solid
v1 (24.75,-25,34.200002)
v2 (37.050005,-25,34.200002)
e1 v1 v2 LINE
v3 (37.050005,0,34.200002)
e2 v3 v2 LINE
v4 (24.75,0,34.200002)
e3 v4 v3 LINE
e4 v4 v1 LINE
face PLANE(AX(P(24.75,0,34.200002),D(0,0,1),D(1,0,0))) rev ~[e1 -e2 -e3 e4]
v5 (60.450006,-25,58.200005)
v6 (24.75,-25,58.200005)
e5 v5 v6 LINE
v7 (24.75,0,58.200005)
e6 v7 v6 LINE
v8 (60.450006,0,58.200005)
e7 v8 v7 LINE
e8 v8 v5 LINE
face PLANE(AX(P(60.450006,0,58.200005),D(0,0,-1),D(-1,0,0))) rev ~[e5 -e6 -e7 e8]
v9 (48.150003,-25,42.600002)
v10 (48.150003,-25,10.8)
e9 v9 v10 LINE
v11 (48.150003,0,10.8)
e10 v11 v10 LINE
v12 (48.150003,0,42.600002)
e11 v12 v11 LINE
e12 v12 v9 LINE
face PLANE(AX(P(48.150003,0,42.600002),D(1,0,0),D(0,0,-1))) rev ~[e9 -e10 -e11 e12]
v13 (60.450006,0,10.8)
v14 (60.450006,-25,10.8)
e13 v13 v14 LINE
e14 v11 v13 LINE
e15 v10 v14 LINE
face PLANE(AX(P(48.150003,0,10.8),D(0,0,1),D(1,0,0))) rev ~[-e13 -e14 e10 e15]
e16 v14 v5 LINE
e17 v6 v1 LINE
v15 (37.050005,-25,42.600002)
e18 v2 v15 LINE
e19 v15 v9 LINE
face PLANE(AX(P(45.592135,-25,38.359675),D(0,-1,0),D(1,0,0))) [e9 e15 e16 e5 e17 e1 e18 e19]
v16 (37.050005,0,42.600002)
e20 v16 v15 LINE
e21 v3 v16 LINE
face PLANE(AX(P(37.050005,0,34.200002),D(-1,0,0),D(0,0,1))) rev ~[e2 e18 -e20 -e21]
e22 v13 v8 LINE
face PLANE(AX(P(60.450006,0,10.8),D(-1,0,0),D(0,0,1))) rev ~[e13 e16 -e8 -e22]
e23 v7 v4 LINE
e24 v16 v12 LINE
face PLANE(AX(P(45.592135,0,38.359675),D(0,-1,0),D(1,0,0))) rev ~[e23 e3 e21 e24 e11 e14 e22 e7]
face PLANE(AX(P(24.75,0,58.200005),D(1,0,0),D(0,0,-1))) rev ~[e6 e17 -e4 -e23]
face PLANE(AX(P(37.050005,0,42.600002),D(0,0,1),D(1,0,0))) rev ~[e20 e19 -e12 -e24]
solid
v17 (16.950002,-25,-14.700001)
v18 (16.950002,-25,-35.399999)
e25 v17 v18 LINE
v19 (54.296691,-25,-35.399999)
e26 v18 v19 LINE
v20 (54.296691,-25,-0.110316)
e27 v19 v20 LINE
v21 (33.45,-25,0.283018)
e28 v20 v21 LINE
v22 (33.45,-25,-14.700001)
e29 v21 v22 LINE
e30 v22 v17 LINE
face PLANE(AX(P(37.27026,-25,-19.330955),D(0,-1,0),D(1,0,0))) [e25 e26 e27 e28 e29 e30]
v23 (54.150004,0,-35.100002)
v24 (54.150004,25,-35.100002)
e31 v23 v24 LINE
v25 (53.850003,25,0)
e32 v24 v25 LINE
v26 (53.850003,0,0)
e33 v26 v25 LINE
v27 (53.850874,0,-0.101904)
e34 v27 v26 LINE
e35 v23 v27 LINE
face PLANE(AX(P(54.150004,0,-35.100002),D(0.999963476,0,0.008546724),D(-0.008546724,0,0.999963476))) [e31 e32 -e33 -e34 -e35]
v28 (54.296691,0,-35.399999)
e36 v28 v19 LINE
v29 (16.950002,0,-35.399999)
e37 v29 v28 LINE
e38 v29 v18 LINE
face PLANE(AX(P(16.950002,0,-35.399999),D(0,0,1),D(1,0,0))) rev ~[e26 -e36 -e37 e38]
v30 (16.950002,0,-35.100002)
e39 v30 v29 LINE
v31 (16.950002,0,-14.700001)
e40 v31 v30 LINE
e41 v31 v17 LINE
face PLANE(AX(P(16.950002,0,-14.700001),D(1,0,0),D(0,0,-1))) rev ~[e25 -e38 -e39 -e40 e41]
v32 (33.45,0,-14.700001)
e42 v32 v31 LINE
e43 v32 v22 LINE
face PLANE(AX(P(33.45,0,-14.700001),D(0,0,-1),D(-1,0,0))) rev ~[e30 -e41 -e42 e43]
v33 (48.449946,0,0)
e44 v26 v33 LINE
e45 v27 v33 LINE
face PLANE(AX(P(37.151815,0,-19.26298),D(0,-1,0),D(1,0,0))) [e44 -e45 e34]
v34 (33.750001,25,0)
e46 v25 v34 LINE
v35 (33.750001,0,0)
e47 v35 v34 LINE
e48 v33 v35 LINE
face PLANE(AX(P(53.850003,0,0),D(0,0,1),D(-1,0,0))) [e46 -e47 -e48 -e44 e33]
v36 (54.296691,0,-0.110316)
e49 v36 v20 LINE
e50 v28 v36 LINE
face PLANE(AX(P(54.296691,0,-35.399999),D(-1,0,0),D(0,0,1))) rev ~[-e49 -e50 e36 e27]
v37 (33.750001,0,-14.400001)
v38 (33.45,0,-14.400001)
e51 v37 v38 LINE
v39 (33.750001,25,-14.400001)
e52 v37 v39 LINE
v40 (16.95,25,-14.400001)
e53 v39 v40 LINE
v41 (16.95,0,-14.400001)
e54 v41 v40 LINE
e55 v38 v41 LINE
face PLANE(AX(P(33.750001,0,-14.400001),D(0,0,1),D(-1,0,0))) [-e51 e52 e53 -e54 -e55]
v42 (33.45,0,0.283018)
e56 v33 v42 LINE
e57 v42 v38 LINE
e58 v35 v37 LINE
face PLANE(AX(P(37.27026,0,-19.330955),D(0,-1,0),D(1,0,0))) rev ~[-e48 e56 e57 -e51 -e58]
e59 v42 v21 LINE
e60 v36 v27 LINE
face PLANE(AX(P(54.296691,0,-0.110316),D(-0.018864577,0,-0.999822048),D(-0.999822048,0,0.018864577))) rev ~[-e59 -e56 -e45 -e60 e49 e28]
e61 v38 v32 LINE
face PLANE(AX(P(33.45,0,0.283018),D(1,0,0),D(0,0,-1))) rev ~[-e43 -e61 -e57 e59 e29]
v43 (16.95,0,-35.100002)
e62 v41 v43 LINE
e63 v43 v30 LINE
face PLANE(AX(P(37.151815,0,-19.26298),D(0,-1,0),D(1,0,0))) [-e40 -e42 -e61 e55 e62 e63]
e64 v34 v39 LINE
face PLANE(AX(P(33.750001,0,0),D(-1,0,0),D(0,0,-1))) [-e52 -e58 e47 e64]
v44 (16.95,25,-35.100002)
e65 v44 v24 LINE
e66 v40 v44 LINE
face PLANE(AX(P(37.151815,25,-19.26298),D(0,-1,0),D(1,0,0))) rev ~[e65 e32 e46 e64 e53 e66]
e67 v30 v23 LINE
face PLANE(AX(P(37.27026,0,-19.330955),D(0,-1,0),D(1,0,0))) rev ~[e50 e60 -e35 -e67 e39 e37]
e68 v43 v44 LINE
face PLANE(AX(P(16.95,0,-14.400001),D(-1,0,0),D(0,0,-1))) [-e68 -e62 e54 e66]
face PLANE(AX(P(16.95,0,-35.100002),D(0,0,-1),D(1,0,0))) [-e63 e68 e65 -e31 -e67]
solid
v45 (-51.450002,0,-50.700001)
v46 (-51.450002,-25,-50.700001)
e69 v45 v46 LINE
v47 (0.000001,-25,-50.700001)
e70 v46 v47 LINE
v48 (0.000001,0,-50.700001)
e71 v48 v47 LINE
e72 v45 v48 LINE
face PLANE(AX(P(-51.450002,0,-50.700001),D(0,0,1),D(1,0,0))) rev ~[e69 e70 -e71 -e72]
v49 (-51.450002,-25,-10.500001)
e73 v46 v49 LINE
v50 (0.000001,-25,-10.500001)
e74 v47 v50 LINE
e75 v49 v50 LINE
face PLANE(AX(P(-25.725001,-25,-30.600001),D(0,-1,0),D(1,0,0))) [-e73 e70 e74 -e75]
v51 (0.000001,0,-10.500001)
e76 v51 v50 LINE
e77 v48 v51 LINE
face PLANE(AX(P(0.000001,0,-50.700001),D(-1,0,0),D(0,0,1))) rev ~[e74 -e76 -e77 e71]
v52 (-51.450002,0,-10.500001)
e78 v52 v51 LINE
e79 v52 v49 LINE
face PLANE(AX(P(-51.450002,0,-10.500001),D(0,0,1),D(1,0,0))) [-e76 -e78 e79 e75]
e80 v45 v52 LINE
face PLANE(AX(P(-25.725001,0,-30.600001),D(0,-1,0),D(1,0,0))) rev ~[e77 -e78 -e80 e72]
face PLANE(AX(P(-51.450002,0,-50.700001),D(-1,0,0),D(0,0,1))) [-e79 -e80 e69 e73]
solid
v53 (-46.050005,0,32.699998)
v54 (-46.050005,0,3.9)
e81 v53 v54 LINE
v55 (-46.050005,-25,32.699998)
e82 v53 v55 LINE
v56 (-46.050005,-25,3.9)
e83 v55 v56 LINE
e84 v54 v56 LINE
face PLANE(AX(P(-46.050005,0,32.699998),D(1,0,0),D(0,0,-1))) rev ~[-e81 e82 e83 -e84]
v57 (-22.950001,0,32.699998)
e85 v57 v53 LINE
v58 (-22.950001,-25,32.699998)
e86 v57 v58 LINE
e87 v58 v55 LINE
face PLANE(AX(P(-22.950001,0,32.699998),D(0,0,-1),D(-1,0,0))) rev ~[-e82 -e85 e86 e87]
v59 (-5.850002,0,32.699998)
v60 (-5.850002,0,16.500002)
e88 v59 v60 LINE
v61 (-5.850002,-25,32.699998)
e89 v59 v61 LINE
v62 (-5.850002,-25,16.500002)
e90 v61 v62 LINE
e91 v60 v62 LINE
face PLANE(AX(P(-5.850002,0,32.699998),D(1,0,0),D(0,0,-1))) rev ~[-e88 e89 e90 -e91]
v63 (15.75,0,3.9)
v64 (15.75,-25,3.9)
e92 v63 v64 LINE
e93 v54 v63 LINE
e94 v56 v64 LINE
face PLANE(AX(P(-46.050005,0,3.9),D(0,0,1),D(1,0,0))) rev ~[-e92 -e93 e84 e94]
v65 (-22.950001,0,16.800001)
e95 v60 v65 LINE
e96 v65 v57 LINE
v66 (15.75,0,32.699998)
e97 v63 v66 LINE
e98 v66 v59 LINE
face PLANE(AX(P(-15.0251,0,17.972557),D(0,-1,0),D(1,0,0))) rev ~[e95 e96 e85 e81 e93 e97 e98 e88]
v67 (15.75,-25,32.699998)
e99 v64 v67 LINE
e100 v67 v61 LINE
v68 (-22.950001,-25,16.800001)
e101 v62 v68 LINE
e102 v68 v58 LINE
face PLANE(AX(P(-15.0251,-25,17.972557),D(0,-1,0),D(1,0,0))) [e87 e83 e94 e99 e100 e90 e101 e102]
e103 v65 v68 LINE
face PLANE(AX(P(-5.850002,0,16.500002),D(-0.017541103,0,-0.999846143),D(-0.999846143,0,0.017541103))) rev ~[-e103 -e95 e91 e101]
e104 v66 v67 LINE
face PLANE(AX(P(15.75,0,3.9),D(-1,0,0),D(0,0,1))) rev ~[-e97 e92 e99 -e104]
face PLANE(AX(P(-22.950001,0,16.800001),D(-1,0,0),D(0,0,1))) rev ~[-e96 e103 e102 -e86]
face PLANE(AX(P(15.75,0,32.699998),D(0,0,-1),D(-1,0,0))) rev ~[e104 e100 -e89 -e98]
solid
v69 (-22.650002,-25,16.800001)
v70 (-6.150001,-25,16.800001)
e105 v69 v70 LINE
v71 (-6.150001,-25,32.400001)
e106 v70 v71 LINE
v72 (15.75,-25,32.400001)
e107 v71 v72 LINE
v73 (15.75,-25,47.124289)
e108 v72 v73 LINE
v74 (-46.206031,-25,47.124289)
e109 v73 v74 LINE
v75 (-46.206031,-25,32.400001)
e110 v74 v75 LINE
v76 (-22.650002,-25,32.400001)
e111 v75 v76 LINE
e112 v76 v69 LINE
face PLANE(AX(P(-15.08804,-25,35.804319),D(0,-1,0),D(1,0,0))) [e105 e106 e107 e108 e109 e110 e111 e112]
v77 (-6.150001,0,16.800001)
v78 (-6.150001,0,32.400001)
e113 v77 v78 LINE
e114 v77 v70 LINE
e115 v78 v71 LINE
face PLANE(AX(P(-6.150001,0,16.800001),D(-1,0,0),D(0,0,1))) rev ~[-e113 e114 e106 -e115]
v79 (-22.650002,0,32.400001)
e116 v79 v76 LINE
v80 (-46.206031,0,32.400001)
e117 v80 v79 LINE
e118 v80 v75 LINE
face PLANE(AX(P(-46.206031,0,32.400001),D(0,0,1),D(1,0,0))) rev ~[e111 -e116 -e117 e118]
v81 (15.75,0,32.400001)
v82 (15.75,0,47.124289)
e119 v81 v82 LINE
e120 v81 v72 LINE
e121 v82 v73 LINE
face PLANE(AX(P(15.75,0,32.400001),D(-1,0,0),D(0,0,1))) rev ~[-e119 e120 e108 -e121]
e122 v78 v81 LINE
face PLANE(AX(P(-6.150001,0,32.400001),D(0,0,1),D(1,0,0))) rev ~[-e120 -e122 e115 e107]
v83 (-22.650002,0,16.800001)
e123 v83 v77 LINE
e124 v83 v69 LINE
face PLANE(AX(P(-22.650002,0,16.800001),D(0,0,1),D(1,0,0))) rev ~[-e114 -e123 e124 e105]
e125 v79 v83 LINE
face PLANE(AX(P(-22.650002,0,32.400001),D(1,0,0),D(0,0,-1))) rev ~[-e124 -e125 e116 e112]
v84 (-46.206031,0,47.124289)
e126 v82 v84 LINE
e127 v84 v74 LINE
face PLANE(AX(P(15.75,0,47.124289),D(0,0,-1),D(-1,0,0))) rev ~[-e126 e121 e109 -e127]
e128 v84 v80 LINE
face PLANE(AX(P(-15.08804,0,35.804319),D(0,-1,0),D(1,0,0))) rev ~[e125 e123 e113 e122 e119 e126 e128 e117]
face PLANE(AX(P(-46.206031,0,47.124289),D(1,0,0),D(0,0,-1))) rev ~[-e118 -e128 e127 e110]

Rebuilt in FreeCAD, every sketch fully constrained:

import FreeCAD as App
import Part
import Sketcher

doc = App.newDocument("Part")
params = doc.addObject("Spreadsheet::Sheet", "Params")
for row, (alias, value) in enumerate([
    ("sketch1_width", "21.600002 mm"),
    ("sketch1_height", "28.799998 mm"),
    ("pad1_length", "25 mm"),
    ("sketch2_width", "16.500001 mm"),
    ("sketch2_width2", "21.900001 mm"),
    ("sketch2_height", "15.6 mm"),
    ("pad2_length", "25 mm"),
    ("sketch3_height", "40.2 mm"),
    ("pad3_length", "25 mm"),
    ("sketch4_width", "16.499998 mm"),
    ("sketch4_height", "20.699998 mm"),
    ("pad4_length", "25 mm"),
    ("sketch5_width", "16.499998 mm"),
    ("sketch5_height", "20.699998 mm"),
    ("pad5_length", "25 mm"),
    ("sketch6_width", "16.800001 mm"),
    ("sketch6_height", "14.400001 mm"),
    ("sketch6_height2", "20.700001 mm"),
    ("pad6_length", "25 mm"),
    ("sketch7_height", "8.4 mm"),
    ("pad7_length", "25 mm"),
], start=1):
    params.set(f"A{row}", alias)
    params.set(f"B{row}", "=" + value)
    params.setAlias(f"B{row}", alias)

body = doc.addObject("PartDesign::Body", "Body")

sketch1 = body.newObject("Sketcher::SketchObject", "Sketch")
sketch1.AttachmentSupport = (doc.getObject("XZ_Plane"), [""])
sketch1.MapMode = "FlatFace"
sketch1.addGeometry([
    Part.LineSegment(App.Vector(-46, 33, 0), App.Vector(-46, 4, 0)),
    Part.LineSegment(App.Vector(-46, 4, 0), App.Vector(16, 4, 0)),
    Part.LineSegment(App.Vector(16, 4, 0), App.Vector(16, 33, 0)),
    Part.LineSegment(App.Vector(16, 33, 0), App.Vector(-6, 33, 0)),
    Part.LineSegment(App.Vector(-6, 33, 0), App.Vector(-6, 17, 0)),
    Part.LineSegment(App.Vector(-6, 17, 0), App.Vector(-23, 17, 0)),
    Part.LineSegment(App.Vector(-23, 17, 0), App.Vector(-23, 33, 0)),
    Part.LineSegment(App.Vector(-23, 33, 0), App.Vector(-46, 33, 0)),
], False)
sketch1.addConstraint([
    Sketcher.Constraint("Coincident", 0, 2, 1, 1),
    Sketcher.Constraint("Coincident", 1, 2, 2, 1),
    Sketcher.Constraint("Coincident", 2, 2, 3, 1),
    Sketcher.Constraint("Coincident", 3, 2, 4, 1),
    Sketcher.Constraint("Coincident", 4, 2, 5, 1),
    Sketcher.Constraint("Coincident", 5, 2, 6, 1),
    Sketcher.Constraint("Coincident", 6, 2, 7, 1),
    Sketcher.Constraint("Coincident", 7, 2, 0, 1),
    Sketcher.Constraint("Vertical", 0),
    Sketcher.Constraint("Horizontal", 1),
    Sketcher.Constraint("Vertical", 2),
    Sketcher.Constraint("Horizontal", 3),
    Sketcher.Constraint("Vertical", 4),
    Sketcher.Constraint("Vertical", 6),
    Sketcher.Constraint("Horizontal", 7),
    Sketcher.Constraint("Horizontal", 3, 2, 6, 2),
    Sketcher.Constraint("DistanceX", 3, 2, 3, 1, 21.600002),
    Sketcher.Constraint("DistanceY", 0, 2, 0, 1, 28.799998),
    Sketcher.Constraint("DistanceY", -1, 1, 0, 2, 3.9),
    Sketcher.Constraint("DistanceY", -1, 1, 4, 2, 16.500002),
    Sketcher.Constraint("DistanceY", -1, 1, 5, 2, 16.800001),
    Sketcher.Constraint("DistanceX", 5, 2, 4, 2, 17.099999),
    Sketcher.Constraint("DistanceX", -1, 1, 1, 2, 15.75),
    Sketcher.Constraint("DistanceX", 1, 1, 1, 2, 61.800005),
])
sketch1.setExpression("Constraints[16]", "Params.sketch1_width")
sketch1.setExpression("Constraints[17]", "Params.sketch1_height")
pad1 = body.newObject("PartDesign::Pad", "Pad")
pad1.Profile = sketch1
pad1.setExpression("Length", "Params.pad1_length")
body2 = doc.addObject("PartDesign::Body", "Body001")

sketch2 = body2.newObject("Sketcher::SketchObject", "Sketch001")
sketch2.AttachmentSupport = (doc.getObject("XZ_Plane001"), [""])
sketch2.MapMode = "FlatFace"
sketch2.addGeometry([
    Part.LineSegment(App.Vector(-23, 32, 0), App.Vector(-23, 17, 0)),
    Part.LineSegment(App.Vector(-23, 17, 0), App.Vector(-6, 17, 0)),
    Part.LineSegment(App.Vector(-6, 17, 0), App.Vector(-6, 32, 0)),
    Part.LineSegment(App.Vector(-6, 32, 0), App.Vector(16, 32, 0)),
    Part.LineSegment(App.Vector(16, 32, 0), App.Vector(16, 47, 0)),
    Part.LineSegment(App.Vector(16, 47, 0), App.Vector(-46, 47, 0)),
    Part.LineSegment(App.Vector(-46, 47, 0), App.Vector(-46, 32, 0)),
    Part.LineSegment(App.Vector(-46, 32, 0), App.Vector(-23, 32, 0)),
], False)
sketch2.addConstraint([
    Sketcher.Constraint("Coincident", 0, 2, 1, 1),
    Sketcher.Constraint("Coincident", 1, 2, 2, 1),
    Sketcher.Constraint("Coincident", 2, 2, 3, 1),
    Sketcher.Constraint("Coincident", 3, 2, 4, 1),
    Sketcher.Constraint("Coincident", 4, 2, 5, 1),
    Sketcher.Constraint("Coincident", 5, 2, 6, 1),
    Sketcher.Constraint("Coincident", 6, 2, 7, 1),
    Sketcher.Constraint("Coincident", 7, 2, 0, 1),
    Sketcher.Constraint("Vertical", 0),
    Sketcher.Constraint("Horizontal", 1),
    Sketcher.Constraint("Vertical", 2),
    Sketcher.Constraint("Horizontal", 3),
    Sketcher.Constraint("Vertical", 4),
    Sketcher.Constraint("Horizontal", 5),
    Sketcher.Constraint("Vertical", 6),
    Sketcher.Constraint("Horizontal", 7),
    Sketcher.Constraint("Horizontal", 3, 2, 6, 2),
    Sketcher.Constraint("DistanceX", 1, 1, 1, 2, 16.500001),
    Sketcher.Constraint("DistanceX", 3, 1, 3, 2, 21.900001),
    Sketcher.Constraint("DistanceY", 0, 2, 0, 1, 15.6),
    Sketcher.Constraint("DistanceY", -1, 1, 0, 2, 16.800001),
    Sketcher.Constraint("DistanceX", 1, 2, -1, 1, 6.150001),
    Sketcher.Constraint("DistanceX", 5, 2, 5, 1, 61.956031),
    Sketcher.Constraint("DistanceY", 4, 1, 4, 2, 14.724288),
])
sketch2.setExpression("Constraints[17]", "Params.sketch2_width")
sketch2.setExpression("Constraints[18]", "Params.sketch2_width2")
sketch2.setExpression("Constraints[19]", "Params.sketch2_height")
pad2 = body2.newObject("PartDesign::Pad", "Pad001")
pad2.Profile = sketch2
pad2.setExpression("Length", "Params.pad2_length")
body3 = doc.addObject("PartDesign::Body", "Body002")

sketch3 = body3.newObject("Sketcher::SketchObject", "Sketch002")
sketch3.AttachmentSupport = (doc.getObject("XZ_Plane002"), [""])
sketch3.MapMode = "FlatFace"
sketch3.addGeometry([
    Part.LineSegment(App.Vector(-51, -11, 0), App.Vector(-51, -51, 0)),
    Part.LineSegment(App.Vector(-51, -51, 0), App.Vector(0, -51, 0)),
    Part.LineSegment(App.Vector(0, -51, 0), App.Vector(0, -11, 0)),
    Part.LineSegment(App.Vector(0, -11, 0), App.Vector(-51, -11, 0)),
], False)
sketch3.addConstraint([
    Sketcher.Constraint("Coincident", 0, 2, 1, 1),
    Sketcher.Constraint("Coincident", 1, 2, 2, 1),
    Sketcher.Constraint("Coincident", 2, 2, 3, 1),
    Sketcher.Constraint("Coincident", 3, 2, 0, 1),
    Sketcher.Constraint("Vertical", 0),
    Sketcher.Constraint("Horizontal", 1),
    Sketcher.Constraint("Vertical", 2),
    Sketcher.Constraint("Horizontal", 3),
    Sketcher.Constraint("PointOnObject", 1, 2, -2),
    Sketcher.Constraint("DistanceY", 0, 2, 0, 1, 40.2),
    Sketcher.Constraint("DistanceY", 0, 2, -1, 1, 50.700001),
    Sketcher.Constraint("DistanceX", 1, 1, 1, 2, 51.450003),
])
sketch3.setExpression("Constraints[9]", "Params.sketch3_height")
pad3 = body3.newObject("PartDesign::Pad", "Pad002")
pad3.Profile = sketch3
pad3.setExpression("Length", "Params.pad3_length")
body4 = doc.addObject("PartDesign::Body", "Body003")

sketch4 = body4.newObject("Sketcher::SketchObject", "Sketch003")
sketch4.AttachmentSupport = (doc.getObject("XZ_Plane003"), [""])
sketch4.MapMode = "FlatFace"
sketch4.addGeometry([
    Part.LineSegment(App.Vector(54.296691, -35.399999, 0), App.Vector(54.296691, -0.110316, 0)),
    Part.LineSegment(App.Vector(54.296691, -0.110316, 0), App.Vector(33.45, 0.283018, 0)),
    Part.LineSegment(App.Vector(33.45, 0.283018, 0), App.Vector(33.45, -14.700001, 0)),
    Part.LineSegment(App.Vector(33.45, -14.700001, 0), App.Vector(16.950002, -14.700001, 0)),
    Part.LineSegment(App.Vector(16.950002, -14.700001, 0), App.Vector(16.950002, -35.399999, 0)),
    Part.LineSegment(App.Vector(16.950002, -35.399999, 0), App.Vector(54.296691, -35.399999, 0)),
], False)
sketch4.addConstraint([
    Sketcher.Constraint("Coincident", 0, 2, 1, 1),
    Sketcher.Constraint("Coincident", 1, 2, 2, 1),
    Sketcher.Constraint("Coincident", 2, 2, 3, 1),
    Sketcher.Constraint("Coincident", 3, 2, 4, 1),
    Sketcher.Constraint("Coincident", 4, 2, 5, 1),
    Sketcher.Constraint("Coincident", 5, 2, 0, 1),
    Sketcher.Constraint("Vertical", 0),
    Sketcher.Constraint("Vertical", 2),
    Sketcher.Constraint("Horizontal", 3),
    Sketcher.Constraint("Vertical", 4),
    Sketcher.Constraint("Horizontal", 5),
    Sketcher.Constraint("DistanceX", 3, 2, 3, 1, 16.499998),
    Sketcher.Constraint("DistanceY", 4, 2, 4, 1, 20.699998),
    Sketcher.Constraint("DistanceY", 2, 2, -1, 1, 14.700001),
    Sketcher.Constraint("DistanceX", -1, 1, 1, 2, 33.45),
    Sketcher.Constraint("Distance", 1, 20.850401),
    Sketcher.Constraint("DistanceX", 5, 1, 5, 2, 37.346689),
    Sketcher.Constraint("DistanceY", 2, 2, 2, 1, 14.983019),
])
sketch4.setExpression("Constraints[11]", "Params.sketch4_width")
sketch4.setExpression("Constraints[12]", "Params.sketch4_height")
pad4 = body4.newObject("PartDesign::Pad", "Pad003")
pad4.Profile = sketch4
pad4.setExpression("Length", "Params.pad4_length")

sketch5 = body4.newObject("Sketcher::SketchObject", "Sketch004")
sketch5.AttachmentSupport = (doc.getObject("XZ_Plane003"), [""])
sketch5.MapMode = "FlatFace"
sketch5.addGeometry([
    Part.LineSegment(App.Vector(54.296691, -35.399999, 0), App.Vector(54.296691, -0.110316, 0)),
    Part.LineSegment(App.Vector(54.296691, -0.110316, 0), App.Vector(33.45, 0.283018, 0)),
    Part.LineSegment(App.Vector(33.45, 0.283018, 0), App.Vector(33.45, -14.700001, 0)),
    Part.LineSegment(App.Vector(33.45, -14.700001, 0), App.Vector(16.950002, -14.700001, 0)),
    Part.LineSegment(App.Vector(16.950002, -14.700001, 0), App.Vector(16.950002, -35.399999, 0)),
    Part.LineSegment(App.Vector(16.950002, -35.399999, 0), App.Vector(54.296691, -35.399999, 0)),
], False)
sketch5.addConstraint([
    Sketcher.Constraint("Coincident", 0, 2, 1, 1),
    Sketcher.Constraint("Coincident", 1, 2, 2, 1),
    Sketcher.Constraint("Coincident", 2, 2, 3, 1),
    Sketcher.Constraint("Coincident", 3, 2, 4, 1),
    Sketcher.Constraint("Coincident", 4, 2, 5, 1),
    Sketcher.Constraint("Coincident", 5, 2, 0, 1),
    Sketcher.Constraint("Vertical", 0),
    Sketcher.Constraint("Vertical", 2),
    Sketcher.Constraint("Horizontal", 3),
    Sketcher.Constraint("Vertical", 4),
    Sketcher.Constraint("Horizontal", 5),
    Sketcher.Constraint("DistanceX", 3, 2, 3, 1, 16.499998),
    Sketcher.Constraint("DistanceY", 4, 2, 4, 1, 20.699998),
    Sketcher.Constraint("DistanceY", 2, 2, -1, 1, 14.700001),
    Sketcher.Constraint("DistanceX", -1, 1, 1, 2, 33.45),
    Sketcher.Constraint("Distance", 1, 20.850401),
    Sketcher.Constraint("DistanceX", 5, 1, 5, 2, 37.346689),
    Sketcher.Constraint("DistanceY", 2, 2, 2, 1, 14.983019),
])
sketch5.setExpression("Constraints[11]", "Params.sketch5_width")
sketch5.setExpression("Constraints[12]", "Params.sketch5_height")
pad5 = body4.newObject("PartDesign::Pad", "Pad004")
pad5.Profile = sketch5
pad5.setExpression("Length", "Params.pad5_length")

sketch6 = body4.newObject("Sketcher::SketchObject", "Sketch005")
sketch6.AttachmentSupport = (doc.getObject("XZ_Plane003"), [""])
sketch6.MapMode = "FlatFace"
sketch6.addGeometry([
    Part.LineSegment(App.Vector(54, -35, 0), App.Vector(54, 0, 0)),
    Part.LineSegment(App.Vector(54, 0, 0), App.Vector(34, 0, 0)),
    Part.LineSegment(App.Vector(34, 0, 0), App.Vector(34, -14, 0)),
    Part.LineSegment(App.Vector(34, -14, 0), App.Vector(17, -14, 0)),
    Part.LineSegment(App.Vector(17, -14, 0), App.Vector(17, -35, 0)),
    Part.LineSegment(App.Vector(17, -35, 0), App.Vector(54, -35, 0)),
], False)
sketch6.addConstraint([
    Sketcher.Constraint("Coincident", 0, 2, 1, 1),
    Sketcher.Constraint("Coincident", 1, 2, 2, 1),
    Sketcher.Constraint("Coincident", 2, 2, 3, 1),
    Sketcher.Constraint("Coincident", 3, 2, 4, 1),
    Sketcher.Constraint("Coincident", 4, 2, 5, 1),
    Sketcher.Constraint("Coincident", 5, 2, 0, 1),
    Sketcher.Constraint("Horizontal", 1),
    Sketcher.Constraint("Vertical", 2),
    Sketcher.Constraint("Horizontal", 3),
    Sketcher.Constraint("Vertical", 4),
    Sketcher.Constraint("Horizontal", 5),
    Sketcher.Constraint("PointOnObject", 0, 2, -1),
    Sketcher.Constraint("DistanceX", 3, 2, 3, 1, 16.800001),
    Sketcher.Constraint("DistanceY", 2, 2, 2, 1, 14.400001),
    Sketcher.Constraint("DistanceY", 4, 2, 4, 1, 20.700001),
    Sketcher.Constraint("DistanceX", 0, 2, 5, 2, 0.300001),
    Sketcher.Constraint("DistanceX", -1, 1, 1, 2, 33.750001),
    Sketcher.Constraint("DistanceX", 1, 2, 1, 1, 20.100002),
])
sketch6.setExpression("Constraints[12]", "Params.sketch6_width")
sketch6.setExpression("Constraints[13]", "Params.sketch6_height")
sketch6.setExpression("Constraints[14]", "Params.sketch6_height2")
pad6 = body4.newObject("PartDesign::Pad", "Pad005")
pad6.Profile = sketch6
pad6.setExpression("Length", "Params.pad6_length")
pad6.Reversed = True
body5 = doc.addObject("PartDesign::Body", "Body004")

sketch7 = body5.newObject("Sketcher::SketchObject", "Sketch006")
sketch7.AttachmentSupport = (doc.getObject("XZ_Plane004"), [""])
sketch7.MapMode = "FlatFace"
sketch7.addGeometry([
    Part.LineSegment(App.Vector(25, 58, 0), App.Vector(25, 34, 0)),
    Part.LineSegment(App.Vector(25, 34, 0), App.Vector(37, 34, 0)),
    Part.LineSegment(App.Vector(37, 34, 0), App.Vector(37, 43, 0)),
    Part.LineSegment(App.Vector(37, 43, 0), App.Vector(48, 43, 0)),
    Part.LineSegment(App.Vector(48, 43, 0), App.Vector(48, 11, 0)),
    Part.LineSegment(App.Vector(48, 11, 0), App.Vector(60, 11, 0)),
    Part.LineSegment(App.Vector(60, 11, 0), App.Vector(60, 58, 0)),
    Part.LineSegment(App.Vector(60, 58, 0), App.Vector(25, 58, 0)),
], False)
sketch7.addConstraint([
    Sketcher.Constraint("Coincident", 0, 2, 1, 1),
    Sketcher.Constraint("Coincident", 1, 2, 2, 1),
    Sketcher.Constraint("Coincident", 2, 2, 3, 1),
    Sketcher.Constraint("Coincident", 3, 2, 4, 1),
    Sketcher.Constraint("Coincident", 4, 2, 5, 1),
    Sketcher.Constraint("Coincident", 5, 2, 6, 1),
    Sketcher.Constraint("Coincident", 6, 2, 7, 1),
    Sketcher.Constraint("Coincident", 7, 2, 0, 1),
    Sketcher.Constraint("Vertical", 0),
    Sketcher.Constraint("Horizontal", 1),
    Sketcher.Constraint("Vertical", 2),
    Sketcher.Constraint("Horizontal", 3),
    Sketcher.Constraint("Vertical", 4),
    Sketcher.Constraint("Horizontal", 5),
    Sketcher.Constraint("Vertical", 6),
    Sketcher.Constraint("Horizontal", 7),
    Sketcher.Constraint("Equal", 1, 5),
    Sketcher.Constraint("DistanceY", 2, 1, 2, 2, 8.4),
    Sketcher.Constraint("DistanceY", -1, 1, 0, 2, 34.200002),
    Sketcher.Constraint("DistanceY", -1, 1, 4, 2, 10.8),
    Sketcher.Constraint("DistanceX", 1, 2, 5, 2, 23.400001),
    Sketcher.Constraint("DistanceX", -1, 1, 0, 2, 24.75),
    Sketcher.Constraint("DistanceX", 1, 1, 1, 2, 12.300005),
    Sketcher.Constraint("DistanceY", 0, 2, 0, 1, 24.000003),
])
sketch7.setExpression("Constraints[17]", "Params.sketch7_height")
pad7 = body5.newObject("PartDesign::Pad", "Pad006")
pad7.Profile = sketch7
pad7.setExpression("Length", "Params.pad7_length")

doc.recompute()
